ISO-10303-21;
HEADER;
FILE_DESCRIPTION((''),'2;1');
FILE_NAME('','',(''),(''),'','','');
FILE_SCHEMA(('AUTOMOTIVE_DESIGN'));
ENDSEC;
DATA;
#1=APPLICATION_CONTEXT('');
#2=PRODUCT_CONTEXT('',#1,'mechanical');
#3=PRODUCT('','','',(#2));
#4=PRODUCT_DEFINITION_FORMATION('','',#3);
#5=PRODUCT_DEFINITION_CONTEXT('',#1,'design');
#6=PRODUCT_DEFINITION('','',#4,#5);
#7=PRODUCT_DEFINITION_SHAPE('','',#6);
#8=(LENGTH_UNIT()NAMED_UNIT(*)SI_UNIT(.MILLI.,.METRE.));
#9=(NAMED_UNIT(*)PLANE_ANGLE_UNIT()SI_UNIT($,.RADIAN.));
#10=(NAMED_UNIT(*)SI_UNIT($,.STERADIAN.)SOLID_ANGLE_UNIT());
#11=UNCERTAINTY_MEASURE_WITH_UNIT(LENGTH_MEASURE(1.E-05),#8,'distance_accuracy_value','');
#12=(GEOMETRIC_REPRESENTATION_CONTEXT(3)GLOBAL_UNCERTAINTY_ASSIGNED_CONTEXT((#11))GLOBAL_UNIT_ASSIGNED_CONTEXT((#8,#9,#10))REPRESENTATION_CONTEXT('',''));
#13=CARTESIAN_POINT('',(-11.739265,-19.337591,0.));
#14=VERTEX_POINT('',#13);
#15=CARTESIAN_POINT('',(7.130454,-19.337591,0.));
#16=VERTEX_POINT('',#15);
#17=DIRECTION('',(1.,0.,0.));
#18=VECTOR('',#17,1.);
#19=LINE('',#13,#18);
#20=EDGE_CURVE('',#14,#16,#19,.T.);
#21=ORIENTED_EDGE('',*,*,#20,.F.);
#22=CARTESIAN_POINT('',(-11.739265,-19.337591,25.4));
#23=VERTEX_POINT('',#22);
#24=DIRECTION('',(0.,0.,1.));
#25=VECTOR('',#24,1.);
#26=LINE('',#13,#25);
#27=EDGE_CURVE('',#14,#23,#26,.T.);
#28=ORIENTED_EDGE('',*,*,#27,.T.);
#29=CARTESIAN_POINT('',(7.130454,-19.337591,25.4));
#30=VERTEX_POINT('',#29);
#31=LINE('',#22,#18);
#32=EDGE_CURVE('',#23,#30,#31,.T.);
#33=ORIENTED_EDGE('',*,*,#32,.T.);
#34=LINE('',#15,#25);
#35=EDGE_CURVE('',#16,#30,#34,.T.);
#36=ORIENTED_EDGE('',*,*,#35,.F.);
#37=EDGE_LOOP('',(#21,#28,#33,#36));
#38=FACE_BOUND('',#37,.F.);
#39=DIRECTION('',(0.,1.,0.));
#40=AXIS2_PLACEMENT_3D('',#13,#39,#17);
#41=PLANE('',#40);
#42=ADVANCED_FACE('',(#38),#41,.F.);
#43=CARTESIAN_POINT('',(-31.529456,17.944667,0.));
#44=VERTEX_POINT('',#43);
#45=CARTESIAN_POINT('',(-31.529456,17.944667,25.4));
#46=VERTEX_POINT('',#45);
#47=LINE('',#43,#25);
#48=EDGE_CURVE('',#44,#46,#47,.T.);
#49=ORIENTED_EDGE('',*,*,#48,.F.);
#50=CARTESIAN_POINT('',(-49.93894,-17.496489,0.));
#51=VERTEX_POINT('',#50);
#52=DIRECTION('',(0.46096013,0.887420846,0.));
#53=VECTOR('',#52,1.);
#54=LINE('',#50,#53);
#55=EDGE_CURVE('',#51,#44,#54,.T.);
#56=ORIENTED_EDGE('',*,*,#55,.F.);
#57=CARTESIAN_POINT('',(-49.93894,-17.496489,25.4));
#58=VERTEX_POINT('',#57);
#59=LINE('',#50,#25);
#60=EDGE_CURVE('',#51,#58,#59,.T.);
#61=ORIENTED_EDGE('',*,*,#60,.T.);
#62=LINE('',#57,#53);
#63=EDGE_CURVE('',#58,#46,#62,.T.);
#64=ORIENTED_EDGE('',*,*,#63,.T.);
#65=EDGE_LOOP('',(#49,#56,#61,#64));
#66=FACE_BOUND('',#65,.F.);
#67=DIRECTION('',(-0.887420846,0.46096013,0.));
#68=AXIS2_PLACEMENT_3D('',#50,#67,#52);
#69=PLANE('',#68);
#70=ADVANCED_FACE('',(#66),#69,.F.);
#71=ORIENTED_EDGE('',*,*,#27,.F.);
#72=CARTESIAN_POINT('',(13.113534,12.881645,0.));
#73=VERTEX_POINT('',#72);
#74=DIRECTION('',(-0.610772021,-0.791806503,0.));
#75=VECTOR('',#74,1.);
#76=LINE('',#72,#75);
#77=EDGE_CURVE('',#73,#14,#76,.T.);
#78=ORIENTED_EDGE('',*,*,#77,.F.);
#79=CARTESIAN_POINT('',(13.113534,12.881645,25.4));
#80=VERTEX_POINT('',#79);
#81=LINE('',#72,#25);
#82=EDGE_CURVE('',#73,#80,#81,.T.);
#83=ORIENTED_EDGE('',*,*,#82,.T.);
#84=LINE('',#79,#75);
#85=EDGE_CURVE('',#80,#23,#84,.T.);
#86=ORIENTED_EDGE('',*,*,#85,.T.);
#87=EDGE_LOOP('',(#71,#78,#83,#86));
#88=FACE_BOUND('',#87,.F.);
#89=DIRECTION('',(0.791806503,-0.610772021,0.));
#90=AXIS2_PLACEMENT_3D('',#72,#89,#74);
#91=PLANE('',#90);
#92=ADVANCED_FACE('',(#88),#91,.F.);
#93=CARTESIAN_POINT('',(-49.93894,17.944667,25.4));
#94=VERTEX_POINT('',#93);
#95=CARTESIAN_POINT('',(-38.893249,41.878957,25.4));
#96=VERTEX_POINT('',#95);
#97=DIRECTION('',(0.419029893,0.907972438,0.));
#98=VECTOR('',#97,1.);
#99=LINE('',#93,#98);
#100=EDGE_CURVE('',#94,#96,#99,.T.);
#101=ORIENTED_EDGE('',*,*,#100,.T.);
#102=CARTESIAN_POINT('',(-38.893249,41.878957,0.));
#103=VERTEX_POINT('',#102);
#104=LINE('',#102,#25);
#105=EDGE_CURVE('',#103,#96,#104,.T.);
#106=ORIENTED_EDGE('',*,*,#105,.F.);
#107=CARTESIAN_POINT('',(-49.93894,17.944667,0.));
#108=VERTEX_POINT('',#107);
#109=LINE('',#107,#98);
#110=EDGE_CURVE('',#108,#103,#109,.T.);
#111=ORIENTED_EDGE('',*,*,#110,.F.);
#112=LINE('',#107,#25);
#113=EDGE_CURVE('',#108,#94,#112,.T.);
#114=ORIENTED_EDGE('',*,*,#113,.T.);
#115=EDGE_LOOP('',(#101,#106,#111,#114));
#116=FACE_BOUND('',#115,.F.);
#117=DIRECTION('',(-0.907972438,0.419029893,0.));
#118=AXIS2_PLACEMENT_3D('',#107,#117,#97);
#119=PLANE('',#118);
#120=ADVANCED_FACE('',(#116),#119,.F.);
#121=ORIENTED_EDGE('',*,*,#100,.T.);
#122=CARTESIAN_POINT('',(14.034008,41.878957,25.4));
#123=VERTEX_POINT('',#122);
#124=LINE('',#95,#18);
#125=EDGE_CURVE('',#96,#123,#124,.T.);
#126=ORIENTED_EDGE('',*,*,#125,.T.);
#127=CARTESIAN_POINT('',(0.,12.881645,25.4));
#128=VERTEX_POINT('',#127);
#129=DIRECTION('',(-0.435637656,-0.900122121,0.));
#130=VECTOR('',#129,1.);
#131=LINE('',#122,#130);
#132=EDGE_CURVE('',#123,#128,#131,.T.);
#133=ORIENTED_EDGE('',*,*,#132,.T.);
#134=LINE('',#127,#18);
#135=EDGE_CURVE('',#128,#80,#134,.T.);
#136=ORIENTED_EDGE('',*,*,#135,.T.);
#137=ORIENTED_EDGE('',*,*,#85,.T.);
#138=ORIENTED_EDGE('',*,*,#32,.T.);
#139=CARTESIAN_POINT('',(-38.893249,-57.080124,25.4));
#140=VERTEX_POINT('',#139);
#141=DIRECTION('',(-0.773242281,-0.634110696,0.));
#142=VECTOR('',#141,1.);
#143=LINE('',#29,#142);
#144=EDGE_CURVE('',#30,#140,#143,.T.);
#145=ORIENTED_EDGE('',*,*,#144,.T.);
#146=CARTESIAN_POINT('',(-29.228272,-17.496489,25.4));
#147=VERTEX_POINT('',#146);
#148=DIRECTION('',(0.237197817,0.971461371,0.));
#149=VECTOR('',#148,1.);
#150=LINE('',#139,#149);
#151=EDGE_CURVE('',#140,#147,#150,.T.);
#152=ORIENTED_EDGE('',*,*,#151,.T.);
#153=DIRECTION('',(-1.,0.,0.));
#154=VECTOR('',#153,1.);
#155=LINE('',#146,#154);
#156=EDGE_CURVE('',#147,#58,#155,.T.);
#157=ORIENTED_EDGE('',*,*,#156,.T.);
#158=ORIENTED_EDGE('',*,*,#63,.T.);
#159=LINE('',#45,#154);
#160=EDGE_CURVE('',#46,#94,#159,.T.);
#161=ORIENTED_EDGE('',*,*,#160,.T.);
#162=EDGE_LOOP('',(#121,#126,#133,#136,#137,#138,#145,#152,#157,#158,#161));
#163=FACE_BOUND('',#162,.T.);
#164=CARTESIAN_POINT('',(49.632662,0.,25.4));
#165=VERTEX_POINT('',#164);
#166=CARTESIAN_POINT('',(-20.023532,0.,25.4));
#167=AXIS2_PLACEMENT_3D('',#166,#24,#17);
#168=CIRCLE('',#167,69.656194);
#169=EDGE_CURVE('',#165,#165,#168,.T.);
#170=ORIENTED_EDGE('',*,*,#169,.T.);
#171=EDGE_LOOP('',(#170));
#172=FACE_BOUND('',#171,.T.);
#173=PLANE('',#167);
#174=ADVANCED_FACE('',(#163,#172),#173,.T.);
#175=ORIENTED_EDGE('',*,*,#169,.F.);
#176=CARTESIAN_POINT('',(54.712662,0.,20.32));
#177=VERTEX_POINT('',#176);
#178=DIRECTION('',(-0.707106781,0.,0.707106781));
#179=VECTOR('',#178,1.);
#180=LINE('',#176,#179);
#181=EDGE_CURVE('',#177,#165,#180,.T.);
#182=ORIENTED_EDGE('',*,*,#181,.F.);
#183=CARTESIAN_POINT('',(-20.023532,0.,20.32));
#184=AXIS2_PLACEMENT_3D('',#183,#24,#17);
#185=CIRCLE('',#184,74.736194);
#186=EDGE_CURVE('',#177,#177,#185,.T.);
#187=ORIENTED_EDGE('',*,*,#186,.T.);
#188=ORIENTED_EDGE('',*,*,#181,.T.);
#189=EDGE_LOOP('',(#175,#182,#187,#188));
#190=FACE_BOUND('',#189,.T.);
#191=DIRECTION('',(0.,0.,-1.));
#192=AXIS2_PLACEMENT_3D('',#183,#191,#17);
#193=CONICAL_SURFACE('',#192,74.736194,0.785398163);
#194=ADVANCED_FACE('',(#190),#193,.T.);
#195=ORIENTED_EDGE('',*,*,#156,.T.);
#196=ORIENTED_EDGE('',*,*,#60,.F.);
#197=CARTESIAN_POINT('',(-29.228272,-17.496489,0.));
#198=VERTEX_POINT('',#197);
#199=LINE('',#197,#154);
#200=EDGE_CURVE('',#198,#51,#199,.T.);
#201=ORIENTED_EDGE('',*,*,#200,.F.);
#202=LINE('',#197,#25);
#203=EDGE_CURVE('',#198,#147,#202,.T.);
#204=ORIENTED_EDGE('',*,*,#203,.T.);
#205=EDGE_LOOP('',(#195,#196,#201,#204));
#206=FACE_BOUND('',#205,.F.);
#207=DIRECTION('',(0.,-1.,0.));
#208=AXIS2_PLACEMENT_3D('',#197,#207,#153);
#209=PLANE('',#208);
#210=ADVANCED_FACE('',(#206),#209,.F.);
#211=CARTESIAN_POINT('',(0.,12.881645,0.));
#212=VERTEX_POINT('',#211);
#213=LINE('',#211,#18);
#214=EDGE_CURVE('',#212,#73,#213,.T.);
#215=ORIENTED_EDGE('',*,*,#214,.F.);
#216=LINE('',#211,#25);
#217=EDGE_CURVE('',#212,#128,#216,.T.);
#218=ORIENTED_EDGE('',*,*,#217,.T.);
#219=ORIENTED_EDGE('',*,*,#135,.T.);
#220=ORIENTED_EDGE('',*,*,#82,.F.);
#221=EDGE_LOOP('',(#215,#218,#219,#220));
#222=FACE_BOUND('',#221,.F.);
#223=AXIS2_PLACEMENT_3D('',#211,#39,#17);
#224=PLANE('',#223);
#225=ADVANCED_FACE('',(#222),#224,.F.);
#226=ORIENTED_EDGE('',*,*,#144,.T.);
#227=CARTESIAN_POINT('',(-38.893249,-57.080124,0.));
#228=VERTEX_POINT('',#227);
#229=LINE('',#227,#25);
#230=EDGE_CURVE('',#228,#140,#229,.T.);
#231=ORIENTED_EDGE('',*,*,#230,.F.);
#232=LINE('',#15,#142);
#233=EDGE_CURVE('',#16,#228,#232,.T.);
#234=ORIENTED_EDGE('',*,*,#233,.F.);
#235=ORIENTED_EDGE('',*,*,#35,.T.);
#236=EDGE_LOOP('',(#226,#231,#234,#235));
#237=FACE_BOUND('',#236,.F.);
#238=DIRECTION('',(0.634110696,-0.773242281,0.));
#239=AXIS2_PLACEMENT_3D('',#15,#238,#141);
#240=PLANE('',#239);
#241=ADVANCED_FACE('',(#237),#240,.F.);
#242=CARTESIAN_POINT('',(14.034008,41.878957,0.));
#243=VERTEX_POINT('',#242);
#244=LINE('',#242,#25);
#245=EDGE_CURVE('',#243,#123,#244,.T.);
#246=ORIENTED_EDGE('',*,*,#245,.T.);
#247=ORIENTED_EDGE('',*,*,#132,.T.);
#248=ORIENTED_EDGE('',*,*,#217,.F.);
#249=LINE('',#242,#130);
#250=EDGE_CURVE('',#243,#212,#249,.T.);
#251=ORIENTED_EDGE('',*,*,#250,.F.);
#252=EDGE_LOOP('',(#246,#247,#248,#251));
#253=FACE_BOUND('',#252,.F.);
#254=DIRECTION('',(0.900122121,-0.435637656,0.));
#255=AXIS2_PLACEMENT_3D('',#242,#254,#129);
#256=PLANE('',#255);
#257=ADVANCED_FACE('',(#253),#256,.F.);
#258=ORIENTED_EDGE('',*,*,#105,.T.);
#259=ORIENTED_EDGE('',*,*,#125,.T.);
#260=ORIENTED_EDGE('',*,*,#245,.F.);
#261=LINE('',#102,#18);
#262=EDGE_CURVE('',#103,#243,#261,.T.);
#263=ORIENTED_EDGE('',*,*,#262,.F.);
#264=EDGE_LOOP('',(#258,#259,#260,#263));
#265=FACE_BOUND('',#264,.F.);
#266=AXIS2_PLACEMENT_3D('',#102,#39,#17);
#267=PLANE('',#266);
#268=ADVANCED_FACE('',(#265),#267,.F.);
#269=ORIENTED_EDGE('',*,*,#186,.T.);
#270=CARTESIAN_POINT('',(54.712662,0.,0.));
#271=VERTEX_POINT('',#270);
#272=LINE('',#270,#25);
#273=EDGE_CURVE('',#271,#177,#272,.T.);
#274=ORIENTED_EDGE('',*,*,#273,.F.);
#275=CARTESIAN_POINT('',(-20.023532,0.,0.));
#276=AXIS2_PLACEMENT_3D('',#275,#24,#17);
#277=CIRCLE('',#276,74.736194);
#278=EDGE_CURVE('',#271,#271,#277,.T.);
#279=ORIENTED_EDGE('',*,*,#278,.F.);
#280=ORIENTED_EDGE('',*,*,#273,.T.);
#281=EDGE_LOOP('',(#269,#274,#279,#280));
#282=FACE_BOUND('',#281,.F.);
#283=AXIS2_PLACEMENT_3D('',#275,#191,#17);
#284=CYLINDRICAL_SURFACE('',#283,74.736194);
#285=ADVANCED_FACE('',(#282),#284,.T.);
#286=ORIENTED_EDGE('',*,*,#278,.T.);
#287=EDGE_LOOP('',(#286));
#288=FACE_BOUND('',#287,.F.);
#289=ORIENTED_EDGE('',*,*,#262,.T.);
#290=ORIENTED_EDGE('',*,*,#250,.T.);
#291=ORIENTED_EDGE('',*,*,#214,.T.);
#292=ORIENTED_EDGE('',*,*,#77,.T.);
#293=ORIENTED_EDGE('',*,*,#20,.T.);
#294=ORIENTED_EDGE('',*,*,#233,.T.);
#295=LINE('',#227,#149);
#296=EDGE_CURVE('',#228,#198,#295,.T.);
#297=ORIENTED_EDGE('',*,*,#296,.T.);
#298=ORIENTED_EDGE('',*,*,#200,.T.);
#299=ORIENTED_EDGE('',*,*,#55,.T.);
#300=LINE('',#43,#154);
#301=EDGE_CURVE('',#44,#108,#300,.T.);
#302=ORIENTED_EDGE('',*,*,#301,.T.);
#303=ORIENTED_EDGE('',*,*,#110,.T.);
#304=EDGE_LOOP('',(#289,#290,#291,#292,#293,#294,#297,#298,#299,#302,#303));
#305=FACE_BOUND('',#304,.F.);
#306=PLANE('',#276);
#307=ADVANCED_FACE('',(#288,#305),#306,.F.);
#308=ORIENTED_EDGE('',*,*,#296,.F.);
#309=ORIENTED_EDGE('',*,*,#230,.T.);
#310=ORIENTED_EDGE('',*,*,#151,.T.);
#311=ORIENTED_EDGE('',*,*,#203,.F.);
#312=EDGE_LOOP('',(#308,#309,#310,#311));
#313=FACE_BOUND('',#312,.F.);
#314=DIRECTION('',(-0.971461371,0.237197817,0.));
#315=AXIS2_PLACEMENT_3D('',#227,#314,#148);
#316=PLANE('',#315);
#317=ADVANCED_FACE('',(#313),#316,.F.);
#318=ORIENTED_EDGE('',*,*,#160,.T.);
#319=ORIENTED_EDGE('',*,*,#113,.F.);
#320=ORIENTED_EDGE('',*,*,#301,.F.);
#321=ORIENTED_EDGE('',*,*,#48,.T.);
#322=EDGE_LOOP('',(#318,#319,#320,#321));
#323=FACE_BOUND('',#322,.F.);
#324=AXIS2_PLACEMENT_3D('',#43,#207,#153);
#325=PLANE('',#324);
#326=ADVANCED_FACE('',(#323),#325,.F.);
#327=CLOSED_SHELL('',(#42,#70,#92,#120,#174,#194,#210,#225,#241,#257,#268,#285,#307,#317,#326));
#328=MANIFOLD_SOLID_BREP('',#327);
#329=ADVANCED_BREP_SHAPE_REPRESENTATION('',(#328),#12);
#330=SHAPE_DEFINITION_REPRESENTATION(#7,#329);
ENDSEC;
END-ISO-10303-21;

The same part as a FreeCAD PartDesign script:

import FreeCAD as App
import Part
import Sketcher

V = App.Vector
Q = App.Units.Quantity


def edges_at(feature, points):
    """Names of the edges that pass closest to the given points."""
    edges = feature.Shape.Edges
    near = lambda p: min(range(len(edges)), key=lambda i: edges[i].distToShape(Part.Vertex(*p))[0])
    return sorted({f"Edge{near(p) + 1}" for p in points})


def add_polygon(sketch, points):
    """Adds a closed chain of lines whose ends are joined by coincident constraints."""
    first, n = sketch.GeometryCount, len(points)
    for a, b in zip(points, points[1:] + points[:1]):
        sketch.addGeometry(Part.LineSegment(App.Vector(*a, 0), App.Vector(*b, 0)), False)
    for i in range(n):
        sketch.addConstraint(Sketcher.Constraint("Coincident", first + i, 2, first + (i + 1) % n, 1))

doc = App.newDocument("Part")
params = doc.addObject("Spreadsheet::Sheet", "Params")
for row, (alias, value) in enumerate([
    ("pad1_length", "1 in"),
    ("chamfer_size", "0.2 in"),
], start=1):
    params.set(f"A{row}", alias)
    params.set(f"B{row}", "=" + value)
    params.setAlias(f"B{row}", alias)

body = doc.addObject("PartDesign::Body", "Body")

# Sketch on XY plane
sketch1 = body.newObject("Sketcher::SketchObject", "Sketch")
sketch1.AttachmentSupport = (doc.getObject("XY_Plane"), [""])
sketch1.MapMode = "FlatFace"
sketch1.addGeometry(Part.Circle(V(-20.023532, 0, 0), V(0, 0, 1), 74.736194), False)  # 0
add_polygon(sketch1, [(-31.529456, 17.944667), (-49.93894, 17.944667), (-38.893249, 41.878957), (14.034008, 41.878957), (0, 12.881645), (13.113534, 12.881645), (-11.739265, -19.337591), (7.130454, -19.337591), (-38.893249, -57.080124), (-29.228272, -17.496489), (-49.93894, -17.496489)])  # lines 1-11
sketch1.addConstraint(Sketcher.Constraint("Horizontal", 1))
sketch1.addConstraint(Sketcher.Constraint("Horizontal", 3))
sketch1.addConstraint(Sketcher.Constraint("Horizontal", 5))
sketch1.addConstraint(Sketcher.Constraint("Horizontal", 7))
sketch1.addConstraint(Sketcher.Constraint("Horizontal", 10))
sketch1.addConstraint(Sketcher.Constraint("PointOnObject", 0, 3, -1))
sketch1.addConstraint(Sketcher.Constraint("PointOnObject", 4, 2, -2))
sketch1.addConstraint(Sketcher.Constraint("Vertical", 2, 2, 8, 2))
sketch1.addConstraint(Sketcher.Constraint("Vertical", 1, 2, 10, 2))
sketch1.addConstraint(Sketcher.Constraint("Diameter", 0, Q("149.472388 mm")))
sketch1.addConstraint(Sketcher.Constraint("DistanceX", 1, 2, -1, 1, Q("1.9661 in")))
sketch1.addConstraint(Sketcher.Constraint("DistanceX", 7, 1, 7, 2, Q("18.869719 mm")))
sketch1.addConstraint(Sketcher.Constraint("DistanceX", 10, 2, 10, 1, Q("20.710668 mm")))
sketch1.addConstraint(Sketcher.Constraint("DistanceX", 6, 2, 5, 2, Q("24.852799 mm")))
sketch1.addConstraint(Sketcher.Constraint("DistanceY", 6, 2, 9, 2, Q("1.841102 mm")))
sketch1.addConstraint(Sketcher.Constraint("Distance", 2, Q("26.36015 mm")))
sketch1.addConstraint(Sketcher.Constraint("Distance", 11, Q("39.937259 mm")))
sketch1.addConstraint(Sketcher.Constraint("DistanceX", 1, 2, 1, 1, Q("18.409484 mm")))
sketch1.addConstraint(Sketcher.Constraint("DistanceX", 3, 1, 3, 2, Q("52.927257 mm")))
sketch1.addConstraint(Sketcher.Constraint("DistanceX", 5, 1, 5, 2, Q("13.113534 mm")))
sketch1.addConstraint(Sketcher.Constraint("DistanceX", 0, 3, -1, 1, Q("20.023532 mm")))
sketch1.addConstraint(Sketcher.Constraint("DistanceX", 2, 2, -1, 1, Q("38.893249 mm")))
sketch1.addConstraint(Sketcher.Constraint("DistanceY", 6, 2, -1, 1, Q("19.337591 mm")))
sketch1.addConstraint(Sketcher.Constraint("DistanceY", 4, 2, 1, 2, Q("5.063022 mm")))
sketch1.addConstraint(Sketcher.Constraint("DistanceY", 8, 2, 1, 2, Q("75.024791 mm")))
pad1 = body.newObject("PartDesign::Pad", "Pad")
pad1.Profile = sketch1
pad1.setExpression("Length", "Params.pad1_length")
doc.recompute()

chamfer = body.newObject("PartDesign::Chamfer", "Chamfer")
chamfer.Base = (pad1, edges_at(pad1, [(-94.76, 0, 25.4)]))
chamfer.setExpression("Size", "Params.chamfer_size")

doc.recompute()
